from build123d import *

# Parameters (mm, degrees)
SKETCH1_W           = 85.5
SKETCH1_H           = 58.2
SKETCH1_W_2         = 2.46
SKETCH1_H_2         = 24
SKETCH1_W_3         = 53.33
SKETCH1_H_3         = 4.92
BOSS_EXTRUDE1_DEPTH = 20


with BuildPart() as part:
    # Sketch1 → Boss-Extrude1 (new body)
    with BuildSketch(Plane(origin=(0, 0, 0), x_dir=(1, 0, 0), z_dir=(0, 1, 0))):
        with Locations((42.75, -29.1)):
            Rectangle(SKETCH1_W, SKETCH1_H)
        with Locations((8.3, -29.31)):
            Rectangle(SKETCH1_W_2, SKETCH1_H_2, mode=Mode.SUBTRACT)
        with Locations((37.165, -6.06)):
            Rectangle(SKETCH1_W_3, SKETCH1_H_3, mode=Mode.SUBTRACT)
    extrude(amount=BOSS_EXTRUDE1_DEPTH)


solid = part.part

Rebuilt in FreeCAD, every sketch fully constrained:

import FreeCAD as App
import Part
import Sketcher

V = App.Vector
Q = App.Units.Quantity


def add_polygon(sketch, points):
    """Adds a closed chain of lines whose ends are joined by coincident constraints."""
    first, n = sketch.GeometryCount, len(points)
    for a, b in zip(points, points[1:] + points[:1]):
        sketch.addGeometry(Part.LineSegment(App.Vector(*a, 0), App.Vector(*b, 0)), False)
    for i in range(n):
        sketch.addConstraint(Sketcher.Constraint("Coincident", first + i, 2, first + (i + 1) % n, 1))

doc = App.newDocument("Part")
body = doc.addObject("PartDesign::Body", "Body")

# Sketch on XZ plane
sketch1 = body.newObject("Sketcher::SketchObject", "Sketch")
sketch1.AttachmentSupport = (doc.getObject("XZ_Plane"), [""])
sketch1.MapMode = "FlatFace"
add_polygon(sketch1, [(0, 0), (0, 58.2), (85.5, 58.2), (85.5, 0)])  # lines 0-3
add_polygon(sketch1, [(9.53, 41.31), (7.07, 41.31), (7.07, 17.31), (9.53, 17.31)])  # lines 4-7
add_polygon(sketch1, [(63.83, 8.52), (10.5, 8.52), (10.5, 3.6), (63.83, 3.6)])  # lines 8-11
sketch1.addConstraint([
    Sketcher.Constraint("Vertical", 0),
    Sketcher.Constraint("Horizontal", 1),
    Sketcher.Constraint("Vertical", 2),
    Sketcher.Constraint("Horizontal", 3),
    Sketcher.Constraint("Horizontal", 4),
    Sketcher.Constraint("Vertical", 5),
    Sketcher.Constraint("Horizontal", 6),
    Sketcher.Constraint("Vertical", 7),
    Sketcher.Constraint("Horizontal", 8),
    Sketcher.Constraint("Vertical", 9),
    Sketcher.Constraint("Horizontal", 10),
    Sketcher.Constraint("Vertical", 11),
    Sketcher.Constraint("Coincident", 3, 2, -1, 1),
    Sketcher.Constraint("DistanceY", 5, 2, 5, 1, Q("24 mm")),
    Sketcher.Constraint("DistanceX", 1, 1, 1, 2, Q("85.5 mm")),
    Sketcher.Constraint("DistanceY", 0, 1, 0, 2, Q("58.2 mm")),
    Sketcher.Constraint("DistanceX", 4, 2, 4, 1, Q("2.46 mm")),
    Sketcher.Constraint("DistanceX", 8, 2, 8, 1, Q("53.33 mm")),
    Sketcher.Constraint("DistanceY", 9, 2, 9, 1, Q("4.92 mm")),
    Sketcher.Constraint("DistanceX", -1, 1, 8, 2, Q("10.5 mm")),
    Sketcher.Constraint("DistanceY", -1, 1, 9, 2, Q("3.6 mm")),
    Sketcher.Constraint("DistanceX", 6, 2, 10, 2, Q("54.3 mm")),
    Sketcher.Constraint("DistanceY", -1, 1, 4, 2, Q("41.31 mm")),
])
pad1 = body.newObject("PartDesign::Pad", "Pad")
pad1.Profile = sketch1
pad1.Length = 20
pad1.Reversed = True

doc.recompute()
